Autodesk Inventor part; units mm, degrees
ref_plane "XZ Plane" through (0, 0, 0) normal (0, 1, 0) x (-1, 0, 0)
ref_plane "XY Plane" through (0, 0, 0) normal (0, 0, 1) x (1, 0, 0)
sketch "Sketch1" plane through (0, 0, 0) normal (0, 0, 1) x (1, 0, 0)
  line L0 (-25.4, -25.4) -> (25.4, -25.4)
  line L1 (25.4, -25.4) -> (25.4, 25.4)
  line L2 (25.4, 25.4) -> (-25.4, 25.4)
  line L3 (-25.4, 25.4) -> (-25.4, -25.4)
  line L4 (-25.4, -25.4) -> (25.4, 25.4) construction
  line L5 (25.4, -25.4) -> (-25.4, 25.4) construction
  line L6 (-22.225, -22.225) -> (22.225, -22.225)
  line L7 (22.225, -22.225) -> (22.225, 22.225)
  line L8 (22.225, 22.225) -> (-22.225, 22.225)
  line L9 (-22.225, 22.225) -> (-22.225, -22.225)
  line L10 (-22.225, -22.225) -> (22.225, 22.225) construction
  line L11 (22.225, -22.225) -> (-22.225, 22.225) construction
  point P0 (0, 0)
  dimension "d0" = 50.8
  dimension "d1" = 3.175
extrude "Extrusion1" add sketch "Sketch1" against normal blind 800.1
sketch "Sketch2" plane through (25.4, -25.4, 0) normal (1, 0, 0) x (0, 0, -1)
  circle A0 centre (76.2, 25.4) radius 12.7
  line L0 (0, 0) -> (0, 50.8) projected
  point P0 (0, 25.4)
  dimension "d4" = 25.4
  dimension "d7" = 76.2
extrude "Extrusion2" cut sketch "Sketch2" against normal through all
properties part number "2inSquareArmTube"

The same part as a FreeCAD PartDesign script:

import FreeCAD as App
import Part
import Sketcher
Q = App.Units.Quantity

doc = App.newDocument("Part")
body = doc.addObject("PartDesign::Body", "Body")

sketch1 = doc.addObject("Sketcher::SketchObject", "Sketch")
body.addObject(sketch1)
sketch1.AttachmentSupport = (doc.XY_Plane, [""])
sketch1.MapMode = "FlatFace"
sketch1.addGeometry(Part.LineSegment(App.Vector(-25, 25, 0), App.Vector(-25, -25, 0)), False)
sketch1.addGeometry(Part.LineSegment(App.Vector(-25, -25, 0), App.Vector(25, -25, 0)), False)
sketch1.addGeometry(Part.LineSegment(App.Vector(25, -25, 0), App.Vector(25, 25, 0)), False)
sketch1.addGeometry(Part.LineSegment(App.Vector(25, 25, 0), App.Vector(-25, 25, 0)), False)
sketch1.addGeometry(Part.LineSegment(App.Vector(22, -22, 0), App.Vector(-22, -22, 0)), False)
sketch1.addGeometry(Part.LineSegment(App.Vector(-22, -22, 0), App.Vector(-22, 22, 0)), False)
sketch1.addGeometry(Part.LineSegment(App.Vector(-22, 22, 0), App.Vector(22, 22, 0)), False)
sketch1.addGeometry(Part.LineSegment(App.Vector(22, 22, 0), App.Vector(22, -22, 0)), False)
sketch1.addConstraint(Sketcher.Constraint("Coincident", 0, 2, 1, 1))
sketch1.addConstraint(Sketcher.Constraint("Coincident", 1, 2, 2, 1))
sketch1.addConstraint(Sketcher.Constraint("Coincident", 2, 2, 3, 1))
sketch1.addConstraint(Sketcher.Constraint("Coincident", 3, 2, 0, 1))
sketch1.addConstraint(Sketcher.Constraint("Coincident", 4, 2, 5, 1))
sketch1.addConstraint(Sketcher.Constraint("Coincident", 5, 2, 6, 1))
sketch1.addConstraint(Sketcher.Constraint("Coincident", 6, 2, 7, 1))
sketch1.addConstraint(Sketcher.Constraint("Coincident", 7, 2, 4, 1))
sketch1.addConstraint(Sketcher.Constraint("Vertical", 0))
sketch1.addConstraint(Sketcher.Constraint("Horizontal", 1))
sketch1.addConstraint(Sketcher.Constraint("Vertical", 2))
sketch1.addConstraint(Sketcher.Constraint("Horizontal", 3))
sketch1.addConstraint(Sketcher.Constraint("Horizontal", 4))
sketch1.addConstraint(Sketcher.Constraint("Vertical", 5))
sketch1.addConstraint(Sketcher.Constraint("Horizontal", 6))
sketch1.addConstraint(Sketcher.Constraint("Vertical", 7))
sketch1.addConstraint(Sketcher.Constraint("Symmetric", 0, 2, 2, 2, -1, 1))
sketch1.addConstraint(Sketcher.Constraint("Symmetric", 4, 2, 6, 2, -1, 1))
sketch1.addConstraint(Sketcher.Constraint("Equal", 3, 0))
sketch1.addConstraint(Sketcher.Constraint("Equal", 6, 5))
sketch1.addConstraint(Sketcher.Constraint("DistanceX", 1, 1, 1, 2, Q("2 in")))
sketch1.addConstraint(Sketcher.Constraint("DistanceX", 0, 2, 4, 2, Q("0.125 in")))
pad1 = doc.addObject("PartDesign::Pad", "Pad")
body.addObject(pad1)
pad1.Profile = sketch1
pad1.Length = Q("31.5 in")
pad1.Reversed = True

sketch2 = doc.addObject("Sketcher::SketchObject", "Sketch001")
body.addObject(sketch2)
sketch2.AttachmentSupport = (doc.YZ_Plane, [""])
sketch2.MapMode = "FlatFace"
sketch2.AttachmentOffset = App.Placement(App.Vector(0, 0, 1 * 25.4), App.Rotation())
sketch2.addGeometry(Part.Circle(App.Vector(0, -76, 0), App.Vector(0, 0, 1), 13), False)
sketch2.addConstraint(Sketcher.Constraint("PointOnObject", 0, 3, -2))
sketch2.addConstraint(Sketcher.Constraint("Diameter", 0, Q("1 in")))
sketch2.addConstraint(Sketcher.Constraint("DistanceY", 0, 3, -1, 1, Q("3 in")))
pocket1 = doc.addObject("PartDesign::Pocket", "Pocket")
body.addObject(pocket1)
pocket1.Profile = sketch2
pocket1.Type = "ThroughAll"

doc.recompute()
